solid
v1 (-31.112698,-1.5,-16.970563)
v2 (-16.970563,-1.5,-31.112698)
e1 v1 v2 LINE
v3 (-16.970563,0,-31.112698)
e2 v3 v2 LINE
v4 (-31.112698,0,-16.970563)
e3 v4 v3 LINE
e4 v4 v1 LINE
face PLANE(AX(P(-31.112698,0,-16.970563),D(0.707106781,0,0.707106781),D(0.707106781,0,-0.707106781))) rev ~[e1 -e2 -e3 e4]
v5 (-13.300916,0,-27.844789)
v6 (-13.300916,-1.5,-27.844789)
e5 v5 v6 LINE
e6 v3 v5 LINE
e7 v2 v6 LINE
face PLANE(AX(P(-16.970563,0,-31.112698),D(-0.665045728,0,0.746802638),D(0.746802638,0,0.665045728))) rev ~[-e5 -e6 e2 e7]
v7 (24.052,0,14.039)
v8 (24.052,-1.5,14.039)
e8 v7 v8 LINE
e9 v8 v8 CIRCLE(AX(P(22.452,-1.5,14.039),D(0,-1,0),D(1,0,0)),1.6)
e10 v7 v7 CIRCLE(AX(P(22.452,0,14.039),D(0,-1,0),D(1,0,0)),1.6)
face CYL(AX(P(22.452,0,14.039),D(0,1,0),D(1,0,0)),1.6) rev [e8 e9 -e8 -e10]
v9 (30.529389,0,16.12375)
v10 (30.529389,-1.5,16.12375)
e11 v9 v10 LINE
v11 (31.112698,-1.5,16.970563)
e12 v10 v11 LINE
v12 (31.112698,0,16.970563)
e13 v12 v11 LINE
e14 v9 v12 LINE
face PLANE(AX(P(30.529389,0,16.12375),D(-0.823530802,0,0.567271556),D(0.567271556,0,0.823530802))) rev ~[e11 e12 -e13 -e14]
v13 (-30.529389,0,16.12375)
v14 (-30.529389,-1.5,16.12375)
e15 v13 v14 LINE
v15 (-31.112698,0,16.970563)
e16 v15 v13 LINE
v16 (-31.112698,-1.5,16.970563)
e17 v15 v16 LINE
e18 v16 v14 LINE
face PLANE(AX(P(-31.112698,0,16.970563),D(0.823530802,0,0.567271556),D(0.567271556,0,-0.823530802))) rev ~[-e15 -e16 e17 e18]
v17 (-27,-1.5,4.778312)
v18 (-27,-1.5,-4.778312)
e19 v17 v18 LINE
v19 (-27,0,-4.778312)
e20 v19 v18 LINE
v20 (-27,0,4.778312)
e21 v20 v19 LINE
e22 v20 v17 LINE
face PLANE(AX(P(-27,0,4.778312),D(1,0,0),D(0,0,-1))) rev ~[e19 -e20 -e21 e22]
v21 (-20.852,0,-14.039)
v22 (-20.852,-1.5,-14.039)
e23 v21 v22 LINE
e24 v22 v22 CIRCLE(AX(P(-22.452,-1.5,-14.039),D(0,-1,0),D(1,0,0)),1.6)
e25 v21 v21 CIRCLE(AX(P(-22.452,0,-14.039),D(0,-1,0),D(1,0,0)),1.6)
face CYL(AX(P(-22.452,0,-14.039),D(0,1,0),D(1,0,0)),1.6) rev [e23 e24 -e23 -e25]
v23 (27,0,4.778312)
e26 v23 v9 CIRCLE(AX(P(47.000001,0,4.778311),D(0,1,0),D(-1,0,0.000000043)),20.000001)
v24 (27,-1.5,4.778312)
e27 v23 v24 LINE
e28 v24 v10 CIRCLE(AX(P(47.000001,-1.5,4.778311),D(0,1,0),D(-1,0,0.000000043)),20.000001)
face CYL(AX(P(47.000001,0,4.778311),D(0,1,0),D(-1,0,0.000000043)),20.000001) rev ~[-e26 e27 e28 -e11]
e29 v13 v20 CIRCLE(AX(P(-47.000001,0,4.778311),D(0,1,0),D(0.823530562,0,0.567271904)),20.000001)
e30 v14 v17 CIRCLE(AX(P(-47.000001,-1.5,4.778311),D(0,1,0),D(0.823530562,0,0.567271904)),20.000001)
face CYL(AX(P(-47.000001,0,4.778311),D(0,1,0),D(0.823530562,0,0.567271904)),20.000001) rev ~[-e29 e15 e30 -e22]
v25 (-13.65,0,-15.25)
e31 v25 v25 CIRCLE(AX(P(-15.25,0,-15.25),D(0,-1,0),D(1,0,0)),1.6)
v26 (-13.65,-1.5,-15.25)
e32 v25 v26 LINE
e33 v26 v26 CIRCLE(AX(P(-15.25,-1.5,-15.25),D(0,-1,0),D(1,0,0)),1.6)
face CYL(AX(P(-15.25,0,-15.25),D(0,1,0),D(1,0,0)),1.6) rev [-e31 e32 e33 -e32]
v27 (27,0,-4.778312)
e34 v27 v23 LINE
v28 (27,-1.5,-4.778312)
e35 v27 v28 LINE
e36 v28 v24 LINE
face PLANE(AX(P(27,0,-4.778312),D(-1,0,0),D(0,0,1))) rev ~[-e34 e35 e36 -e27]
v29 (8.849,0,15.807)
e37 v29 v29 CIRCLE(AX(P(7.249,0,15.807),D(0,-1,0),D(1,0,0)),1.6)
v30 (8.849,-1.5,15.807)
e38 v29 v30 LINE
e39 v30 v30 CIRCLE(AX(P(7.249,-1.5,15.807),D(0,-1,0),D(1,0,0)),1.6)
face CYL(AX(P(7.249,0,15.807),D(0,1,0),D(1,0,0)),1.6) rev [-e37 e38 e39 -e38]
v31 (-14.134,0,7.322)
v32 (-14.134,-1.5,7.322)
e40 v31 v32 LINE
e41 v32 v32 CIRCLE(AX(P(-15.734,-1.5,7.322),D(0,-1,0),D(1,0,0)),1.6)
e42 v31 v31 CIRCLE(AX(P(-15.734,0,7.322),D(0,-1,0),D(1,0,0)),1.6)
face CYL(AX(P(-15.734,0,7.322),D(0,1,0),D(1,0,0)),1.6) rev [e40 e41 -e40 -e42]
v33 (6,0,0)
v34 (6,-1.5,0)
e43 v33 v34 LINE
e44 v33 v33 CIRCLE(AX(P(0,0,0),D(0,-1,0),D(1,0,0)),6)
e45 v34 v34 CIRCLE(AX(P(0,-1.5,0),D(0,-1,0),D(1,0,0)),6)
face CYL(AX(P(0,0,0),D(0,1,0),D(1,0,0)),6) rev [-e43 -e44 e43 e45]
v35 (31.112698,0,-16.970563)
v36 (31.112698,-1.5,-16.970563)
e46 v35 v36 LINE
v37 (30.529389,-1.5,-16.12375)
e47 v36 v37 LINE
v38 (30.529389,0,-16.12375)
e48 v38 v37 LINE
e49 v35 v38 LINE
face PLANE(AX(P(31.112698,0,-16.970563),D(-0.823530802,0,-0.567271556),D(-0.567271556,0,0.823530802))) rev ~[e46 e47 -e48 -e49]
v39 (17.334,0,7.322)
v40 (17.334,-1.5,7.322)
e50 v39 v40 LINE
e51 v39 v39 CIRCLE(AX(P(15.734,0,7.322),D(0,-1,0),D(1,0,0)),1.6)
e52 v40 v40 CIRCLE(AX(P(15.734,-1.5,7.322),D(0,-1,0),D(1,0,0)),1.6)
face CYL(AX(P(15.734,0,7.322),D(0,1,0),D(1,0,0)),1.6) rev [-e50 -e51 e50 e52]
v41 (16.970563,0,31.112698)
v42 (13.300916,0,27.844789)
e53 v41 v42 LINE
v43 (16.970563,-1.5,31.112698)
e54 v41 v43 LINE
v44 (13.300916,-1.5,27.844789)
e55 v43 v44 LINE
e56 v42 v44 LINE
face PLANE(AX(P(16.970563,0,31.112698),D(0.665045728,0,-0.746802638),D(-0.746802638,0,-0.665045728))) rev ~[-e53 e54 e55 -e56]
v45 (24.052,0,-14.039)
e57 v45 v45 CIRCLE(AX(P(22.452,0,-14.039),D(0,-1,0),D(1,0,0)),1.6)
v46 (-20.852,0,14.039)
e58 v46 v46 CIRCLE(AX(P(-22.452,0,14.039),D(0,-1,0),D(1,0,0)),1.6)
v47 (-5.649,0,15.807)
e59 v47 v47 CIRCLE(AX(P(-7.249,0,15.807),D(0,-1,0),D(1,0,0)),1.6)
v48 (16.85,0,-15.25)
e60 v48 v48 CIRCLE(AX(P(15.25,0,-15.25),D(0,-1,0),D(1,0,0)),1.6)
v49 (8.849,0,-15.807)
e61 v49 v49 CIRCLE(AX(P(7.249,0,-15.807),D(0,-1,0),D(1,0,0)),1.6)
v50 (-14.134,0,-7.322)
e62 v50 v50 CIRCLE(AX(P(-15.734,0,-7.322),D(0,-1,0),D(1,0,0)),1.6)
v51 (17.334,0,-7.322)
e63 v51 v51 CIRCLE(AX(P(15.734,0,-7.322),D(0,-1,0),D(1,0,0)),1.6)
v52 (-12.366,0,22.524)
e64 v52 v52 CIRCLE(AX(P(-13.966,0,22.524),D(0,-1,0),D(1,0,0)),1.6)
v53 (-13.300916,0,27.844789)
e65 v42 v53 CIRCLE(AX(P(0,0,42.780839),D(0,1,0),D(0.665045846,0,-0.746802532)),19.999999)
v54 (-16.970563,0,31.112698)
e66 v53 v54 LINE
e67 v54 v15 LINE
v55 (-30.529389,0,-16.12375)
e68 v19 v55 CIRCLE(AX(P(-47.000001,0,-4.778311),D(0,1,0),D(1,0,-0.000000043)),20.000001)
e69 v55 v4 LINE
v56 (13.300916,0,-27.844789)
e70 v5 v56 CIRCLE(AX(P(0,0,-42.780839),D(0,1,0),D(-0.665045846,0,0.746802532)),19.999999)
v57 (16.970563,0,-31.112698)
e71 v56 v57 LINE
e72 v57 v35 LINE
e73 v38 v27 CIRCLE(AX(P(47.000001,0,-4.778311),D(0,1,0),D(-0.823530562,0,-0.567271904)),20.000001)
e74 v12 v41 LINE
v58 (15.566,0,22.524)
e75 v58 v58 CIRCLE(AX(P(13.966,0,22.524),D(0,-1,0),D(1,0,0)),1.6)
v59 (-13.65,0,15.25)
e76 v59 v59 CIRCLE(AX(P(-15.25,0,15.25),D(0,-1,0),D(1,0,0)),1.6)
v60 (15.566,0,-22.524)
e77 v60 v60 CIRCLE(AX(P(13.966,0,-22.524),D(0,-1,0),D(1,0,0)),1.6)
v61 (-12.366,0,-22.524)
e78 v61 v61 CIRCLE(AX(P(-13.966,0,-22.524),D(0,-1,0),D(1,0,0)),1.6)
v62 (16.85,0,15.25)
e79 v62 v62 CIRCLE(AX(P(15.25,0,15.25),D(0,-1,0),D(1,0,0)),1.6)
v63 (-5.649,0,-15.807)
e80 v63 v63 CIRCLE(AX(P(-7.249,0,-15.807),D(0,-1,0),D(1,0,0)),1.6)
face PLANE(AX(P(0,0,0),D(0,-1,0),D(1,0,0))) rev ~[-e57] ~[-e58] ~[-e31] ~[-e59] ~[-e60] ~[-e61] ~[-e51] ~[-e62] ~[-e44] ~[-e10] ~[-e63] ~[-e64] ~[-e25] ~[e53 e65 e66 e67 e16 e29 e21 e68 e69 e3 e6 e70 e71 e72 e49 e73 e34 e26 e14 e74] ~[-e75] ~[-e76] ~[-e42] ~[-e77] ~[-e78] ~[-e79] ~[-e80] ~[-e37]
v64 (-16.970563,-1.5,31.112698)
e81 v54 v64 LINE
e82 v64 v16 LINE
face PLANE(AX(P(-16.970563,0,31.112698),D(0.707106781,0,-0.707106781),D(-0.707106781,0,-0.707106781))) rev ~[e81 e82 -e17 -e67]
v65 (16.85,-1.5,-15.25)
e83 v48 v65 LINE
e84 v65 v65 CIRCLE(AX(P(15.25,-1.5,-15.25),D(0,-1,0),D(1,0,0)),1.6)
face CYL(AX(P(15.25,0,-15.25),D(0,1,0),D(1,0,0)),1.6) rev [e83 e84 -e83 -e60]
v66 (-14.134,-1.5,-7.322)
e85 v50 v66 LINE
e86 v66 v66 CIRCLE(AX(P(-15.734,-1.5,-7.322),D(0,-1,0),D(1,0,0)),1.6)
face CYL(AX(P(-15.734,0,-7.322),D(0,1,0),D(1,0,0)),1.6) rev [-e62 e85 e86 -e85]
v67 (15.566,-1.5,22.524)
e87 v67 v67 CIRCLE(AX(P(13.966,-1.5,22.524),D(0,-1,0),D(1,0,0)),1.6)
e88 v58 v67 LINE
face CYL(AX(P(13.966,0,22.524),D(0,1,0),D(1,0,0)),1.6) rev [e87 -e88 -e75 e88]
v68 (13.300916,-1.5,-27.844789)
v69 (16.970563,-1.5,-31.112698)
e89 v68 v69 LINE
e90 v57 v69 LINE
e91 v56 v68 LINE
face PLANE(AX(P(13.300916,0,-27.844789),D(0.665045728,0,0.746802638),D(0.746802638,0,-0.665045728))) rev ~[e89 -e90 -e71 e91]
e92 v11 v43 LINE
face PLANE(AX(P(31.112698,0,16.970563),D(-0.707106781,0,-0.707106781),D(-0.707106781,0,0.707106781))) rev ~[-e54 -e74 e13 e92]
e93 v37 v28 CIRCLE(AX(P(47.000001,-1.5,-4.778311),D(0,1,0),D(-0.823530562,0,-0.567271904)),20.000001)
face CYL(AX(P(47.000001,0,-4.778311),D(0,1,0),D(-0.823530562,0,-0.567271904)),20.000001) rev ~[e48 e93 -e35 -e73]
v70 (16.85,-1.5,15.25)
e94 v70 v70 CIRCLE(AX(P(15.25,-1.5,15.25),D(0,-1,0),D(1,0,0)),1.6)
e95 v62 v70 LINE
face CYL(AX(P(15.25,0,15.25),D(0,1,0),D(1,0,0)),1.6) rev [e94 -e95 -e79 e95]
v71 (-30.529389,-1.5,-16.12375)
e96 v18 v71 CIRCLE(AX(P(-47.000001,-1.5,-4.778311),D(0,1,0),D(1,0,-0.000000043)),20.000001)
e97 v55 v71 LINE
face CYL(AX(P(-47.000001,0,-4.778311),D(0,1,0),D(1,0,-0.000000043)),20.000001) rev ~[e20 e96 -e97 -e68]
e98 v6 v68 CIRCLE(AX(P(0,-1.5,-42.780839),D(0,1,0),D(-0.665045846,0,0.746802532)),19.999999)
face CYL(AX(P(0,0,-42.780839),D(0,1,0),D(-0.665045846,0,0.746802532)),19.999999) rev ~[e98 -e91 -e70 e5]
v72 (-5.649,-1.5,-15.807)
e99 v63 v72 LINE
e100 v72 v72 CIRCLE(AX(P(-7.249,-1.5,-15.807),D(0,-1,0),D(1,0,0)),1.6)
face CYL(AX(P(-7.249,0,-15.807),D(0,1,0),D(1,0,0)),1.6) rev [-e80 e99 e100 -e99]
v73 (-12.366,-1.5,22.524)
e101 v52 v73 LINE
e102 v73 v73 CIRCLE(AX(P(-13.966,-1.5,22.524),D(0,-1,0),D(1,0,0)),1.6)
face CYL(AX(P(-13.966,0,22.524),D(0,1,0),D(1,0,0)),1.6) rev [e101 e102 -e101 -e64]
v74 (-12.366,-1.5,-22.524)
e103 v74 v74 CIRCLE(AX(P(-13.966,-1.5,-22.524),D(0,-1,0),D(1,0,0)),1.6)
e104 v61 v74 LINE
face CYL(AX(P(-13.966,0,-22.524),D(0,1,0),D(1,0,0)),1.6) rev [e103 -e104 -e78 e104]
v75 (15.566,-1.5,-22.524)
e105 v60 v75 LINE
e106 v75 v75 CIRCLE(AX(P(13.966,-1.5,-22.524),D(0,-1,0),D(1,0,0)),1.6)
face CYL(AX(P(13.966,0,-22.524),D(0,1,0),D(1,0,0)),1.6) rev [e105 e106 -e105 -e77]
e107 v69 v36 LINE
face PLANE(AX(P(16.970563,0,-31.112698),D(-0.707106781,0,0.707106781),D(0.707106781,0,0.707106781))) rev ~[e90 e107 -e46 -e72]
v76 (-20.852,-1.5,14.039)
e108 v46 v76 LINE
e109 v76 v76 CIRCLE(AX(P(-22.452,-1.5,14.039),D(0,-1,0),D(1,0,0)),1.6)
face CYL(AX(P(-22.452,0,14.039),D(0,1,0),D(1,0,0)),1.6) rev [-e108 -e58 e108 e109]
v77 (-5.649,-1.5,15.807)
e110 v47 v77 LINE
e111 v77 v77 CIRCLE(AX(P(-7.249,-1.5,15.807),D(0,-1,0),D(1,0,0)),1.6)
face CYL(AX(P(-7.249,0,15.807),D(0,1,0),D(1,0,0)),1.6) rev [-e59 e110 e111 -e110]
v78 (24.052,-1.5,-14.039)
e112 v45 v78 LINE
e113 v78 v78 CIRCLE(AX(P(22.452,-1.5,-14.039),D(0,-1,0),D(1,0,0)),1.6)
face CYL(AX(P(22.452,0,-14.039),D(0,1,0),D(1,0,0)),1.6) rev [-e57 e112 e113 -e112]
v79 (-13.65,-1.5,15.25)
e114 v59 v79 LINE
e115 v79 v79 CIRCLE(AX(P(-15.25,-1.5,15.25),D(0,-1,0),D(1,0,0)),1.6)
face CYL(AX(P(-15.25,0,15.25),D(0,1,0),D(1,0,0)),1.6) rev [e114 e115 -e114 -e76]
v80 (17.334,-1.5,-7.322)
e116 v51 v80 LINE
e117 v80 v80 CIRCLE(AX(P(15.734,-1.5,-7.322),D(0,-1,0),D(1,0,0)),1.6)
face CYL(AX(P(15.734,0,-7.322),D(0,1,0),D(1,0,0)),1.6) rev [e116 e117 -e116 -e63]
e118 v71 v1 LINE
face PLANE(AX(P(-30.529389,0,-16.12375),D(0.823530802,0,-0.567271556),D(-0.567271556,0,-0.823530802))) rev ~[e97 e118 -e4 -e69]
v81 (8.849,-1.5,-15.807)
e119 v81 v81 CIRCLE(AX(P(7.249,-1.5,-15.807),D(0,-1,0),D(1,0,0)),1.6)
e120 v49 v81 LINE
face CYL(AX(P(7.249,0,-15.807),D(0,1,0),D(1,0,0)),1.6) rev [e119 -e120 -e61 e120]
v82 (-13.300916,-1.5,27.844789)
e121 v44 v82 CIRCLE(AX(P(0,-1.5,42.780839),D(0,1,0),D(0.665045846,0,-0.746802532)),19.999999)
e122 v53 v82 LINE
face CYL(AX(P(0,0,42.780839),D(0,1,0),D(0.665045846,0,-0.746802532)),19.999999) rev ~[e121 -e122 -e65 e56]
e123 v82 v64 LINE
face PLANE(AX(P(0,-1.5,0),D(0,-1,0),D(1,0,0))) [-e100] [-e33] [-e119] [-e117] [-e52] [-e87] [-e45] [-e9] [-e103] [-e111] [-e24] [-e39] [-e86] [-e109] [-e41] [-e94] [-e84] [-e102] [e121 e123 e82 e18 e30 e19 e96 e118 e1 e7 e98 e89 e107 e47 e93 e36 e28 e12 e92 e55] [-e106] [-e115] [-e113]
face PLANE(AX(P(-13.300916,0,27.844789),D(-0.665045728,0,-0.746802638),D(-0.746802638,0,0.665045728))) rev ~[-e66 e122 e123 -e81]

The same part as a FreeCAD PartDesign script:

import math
import FreeCAD as App
import Part
import Sketcher

V = App.Vector
Q = App.Units.Quantity

doc = App.newDocument("Part")
body = doc.addObject("PartDesign::Body", "Body")

# Sketch on XZ plane
sketch1 = body.newObject("Sketcher::SketchObject", "Sketch")
sketch1.AttachmentSupport = (doc.getObject("XZ_Plane"), [""])
sketch1.MapMode = "FlatFace"
sketch1.addGeometry([
    Part.LineSegment(V(31.1, 17, 0), V(17, 31.1, 0)),  # 0
    Part.LineSegment(V(17, 31.1, 0), V(13.3, 27.8, 0)),  # 1
    Part.ArcOfCircle(Part.Circle(V(0, 42.8, 0), V(0, 0, 1), 20), math.radians(-132), math.radians(-48)),  # 2
    Part.LineSegment(V(-13.3, 27.8, 0), V(-17, 31.1, 0)),  # 3
    Part.LineSegment(V(-17, 31.1, 0), V(-31.1, 17, 0)),  # 4
    Part.LineSegment(V(-31.1, 17, 0), V(-30.5, 16.1, 0)),  # 5
    Part.ArcOfCircle(Part.Circle(V(-47, 4.8, 0), V(0, 0, 1), 20), math.radians(0), math.radians(35)),  # 6
    Part.LineSegment(V(-27, 4.8, 0), V(-27, -4.8, 0)),  # 7
    Part.ArcOfCircle(Part.Circle(V(-47, -4.8, 0), V(0, 0, 1), 20), math.radians(-35), math.radians(0)),  # 8
    Part.LineSegment(V(-30.5, -16.1, 0), V(-31.1, -17, 0)),  # 9
    Part.LineSegment(V(-31.1, -17, 0), V(-17, -31.1, 0)),  # 10
    Part.LineSegment(V(-17, -31.1, 0), V(-13.3, -27.8, 0)),  # 11
    Part.ArcOfCircle(Part.Circle(V(0, -42.8, 0), V(0, 0, 1), 20), math.radians(48), math.radians(132)),  # 12
    Part.LineSegment(V(13.3, -27.8, 0), V(17, -31.1, 0)),  # 13
    Part.LineSegment(V(17, -31.1, 0), V(31.1, -17, 0)),  # 14
    Part.LineSegment(V(31.1, -17, 0), V(30.5, -16.1, 0)),  # 15
    Part.ArcOfCircle(Part.Circle(V(47, -4.8, 0), V(0, 0, 1), 20), math.radians(-180), math.radians(-145)),  # 16
    Part.LineSegment(V(27, -4.8, 0), V(27, 4.8, 0)),  # 17
    Part.ArcOfCircle(Part.Circle(V(47, 4.8, 0), V(0, 0, 1), 20), math.radians(145), math.radians(180)),  # 18
    Part.LineSegment(V(30.5, 16.1, 0), V(31.1, 17, 0)),  # 19
    Part.Circle(V(-14, -22.5, 0), V(0, 0, 1), 1.6),  # 20
    Part.Circle(V(-22.5, -14, 0), V(0, 0, 1), 1.6),  # 21
    Part.Circle(V(-15.2, -15.2, 0), V(0, 0, 1), 1.6),  # 22
    Part.Circle(V(-7.2, -15.8, 0), V(0, 0, 1), 1.6),  # 23
    Part.Circle(V(-15.7, -7.3, 0), V(0, 0, 1), 1.6),  # 24
    Part.Circle(V(7.2, -15.8, 0), V(0, 0, 1), 1.6),  # 25
    Part.Circle(V(14, -22.5, 0), V(0, 0, 1), 1.6),  # 26
    Part.Circle(V(15.2, -15.2, 0), V(0, 0, 1), 1.6),  # 27
    Part.Circle(V(22.5, -14, 0), V(0, 0, 1), 1.6),  # 28
    Part.Circle(V(15.7, -7.3, 0), V(0, 0, 1), 1.6),  # 29
    Part.Circle(V(-15.7, 7.3, 0), V(0, 0, 1), 1.6),  # 30
    Part.Circle(V(-22.5, 14, 0), V(0, 0, 1), 1.6),  # 31
    Part.Circle(V(-15.2, 15.2, 0), V(0, 0, 1), 1.6),  # 32
    Part.Circle(V(-14, 22.5, 0), V(0, 0, 1), 1.6),  # 33
    Part.Circle(V(-7.2, 15.8, 0), V(0, 0, 1), 1.6),  # 34
    Part.Circle(V(0, 0, 0), V(0, 0, 1), 6),  # 35
    Part.Circle(V(15.7, 7.3, 0), V(0, 0, 1), 1.6),  # 36
    Part.Circle(V(7.2, 15.8, 0), V(0, 0, 1), 1.6),  # 37
    Part.Circle(V(15.2, 15.2, 0), V(0, 0, 1), 1.6),  # 38
    Part.Circle(V(22.5, 14, 0), V(0, 0, 1), 1.6),  # 39
    Part.Circle(V(14, 22.5, 0), V(0, 0, 1), 1.6),  # 40
], False)
sketch1.addConstraint([
    Sketcher.Constraint("Coincident", 0, 2, 1, 1),
    Sketcher.Constraint("Tangent", 1, 2, 2, 2),
    Sketcher.Constraint("Tangent", 2, 1, 3, 1),
    Sketcher.Constraint("Coincident", 3, 2, 4, 1),
    Sketcher.Constraint("Coincident", 4, 2, 5, 1),
    Sketcher.Constraint("Tangent", 5, 2, 6, 2),
    Sketcher.Constraint("Tangent", 6, 1, 7, 1),
    Sketcher.Constraint("Tangent", 7, 2, 8, 2),
    Sketcher.Constraint("Tangent", 8, 1, 9, 1),
    Sketcher.Constraint("Coincident", 9, 2, 10, 1),
    Sketcher.Constraint("Coincident", 10, 2, 11, 1),
    Sketcher.Constraint("Tangent", 11, 2, 12, 2),
    Sketcher.Constraint("Tangent", 12, 1, 13, 1),
    Sketcher.Constraint("Coincident", 13, 2, 14, 1),
    Sketcher.Constraint("Coincident", 14, 2, 15, 1),
    Sketcher.Constraint("Tangent", 15, 2, 16, 2),
    Sketcher.Constraint("Tangent", 16, 1, 17, 1),
    Sketcher.Constraint("Tangent", 17, 2, 18, 2),
    Sketcher.Constraint("Tangent", 18, 1, 19, 1),
    Sketcher.Constraint("Coincident", 19, 2, 0, 1),
    Sketcher.Constraint("Vertical", 7),
    Sketcher.Constraint("Vertical", 17),
    Sketcher.Constraint("Coincident", 35, 3, -1, 1),
    Sketcher.Constraint("Equal", 6, 8),
    Sketcher.Constraint("Equal", 2, 12),
    Sketcher.Constraint("Equal", 8, 16),
    Sketcher.Constraint("Equal", 16, 18),
    Sketcher.Constraint("Equal", 20, 21),
    Sketcher.Constraint("Equal", 21, 22),
    Sketcher.Constraint("Equal", 22, 23),
    Sketcher.Constraint("Equal", 23, 24),
    Sketcher.Constraint("Equal", 24, 25),
    Sketcher.Constraint("Equal", 25, 26),
    Sketcher.Constraint("Equal", 26, 27),
    Sketcher.Constraint("Equal", 27, 28),
    Sketcher.Constraint("Equal", 28, 29),
    Sketcher.Constraint("Equal", 29, 30),
    Sketcher.Constraint("Equal", 30, 31),
    Sketcher.Constraint("Equal", 31, 32),
    Sketcher.Constraint("Equal", 32, 33),
    Sketcher.Constraint("Equal", 33, 34),
    Sketcher.Constraint("Equal", 34, 36),
    Sketcher.Constraint("Equal", 36, 37),
    Sketcher.Constraint("Equal", 37, 38),
    Sketcher.Constraint("Equal", 38, 39),
    Sketcher.Constraint("Equal", 39, 40),
    Sketcher.Constraint("Symmetric", 2, 3, 12, 3, -1, 1),
    Sketcher.Constraint("Symmetric", 6, 3, 16, 3, -1, 1),
    Sketcher.Constraint("Symmetric", 29, 3, 30, 3, -1, 1),
    Sketcher.Constraint("Symmetric", 28, 3, 31, 3, -1, 1),
    Sketcher.Constraint("Symmetric", 27, 3, 32, 3, -1, 1),
    Sketcher.Constraint("Symmetric", 26, 3, 33, 3, -1, 1),
    Sketcher.Constraint("Symmetric", 25, 3, 34, 3, -1, 1),
    Sketcher.Constraint("Symmetric", 24, 3, 36, 3, -1, 1),
    Sketcher.Constraint("Symmetric", 23, 3, 37, 3, -1, 1),
    Sketcher.Constraint("Symmetric", 22, 3, 38, 3, -1, 1),
    Sketcher.Constraint("Symmetric", 21, 3, 39, 3, -1, 1),
    Sketcher.Constraint("Symmetric", 20, 3, 40, 3, -1, 1),
    Sketcher.Constraint("Symmetric", 0, 2, 10, 2, -1, 1),
    Sketcher.Constraint("Symmetric", 3, 2, 13, 2, -1, 1),
    Sketcher.Constraint("Symmetric", 4, 2, 14, 2, -1, 1),
    Sketcher.Constraint("Symmetric", 8, 1, 18, 1, -1, 1),
    Sketcher.Constraint("Symmetric", 23, 3, 25, 3, -2),
    Sketcher.Constraint("Symmetric", 20, 3, 26, 3, -2),
    Sketcher.Constraint("Symmetric", 22, 3, 27, 3, -2),
    Sketcher.Constraint("Symmetric", 21, 3, 28, 3, -2),
    Sketcher.Constraint("Symmetric", 24, 3, 29, 3, -2),
    Sketcher.Constraint("Symmetric", 1, 2, 2, 1, -2),
    Sketcher.Constraint("Symmetric", 9, 2, 14, 2, -2),
    Sketcher.Constraint("Perpendicular", 0, 4),
    Sketcher.Constraint("Perpendicular", 4, 10),
    Sketcher.Constraint("Horizontal", 8, 3, 16, 3),
    Sketcher.Constraint("Horizontal", 0, 2, 3, 2),
    Sketcher.Constraint("Diameter", 35, Q("12 mm")),
    Sketcher.Constraint("Radius", 2, Q("19.999999 mm")),
    Sketcher.Constraint("Radius", 6, Q("20.000001 mm")),
    Sketcher.Constraint("Diameter", 20, Q("3.2 mm")),
    Sketcher.Constraint("Distance", 0, Q("19.999999 mm")),
    Sketcher.Constraint("DistanceX", 6, 3, -1, 1, Q("47.000001 mm")),
    Sketcher.Constraint("DistanceX", 22, 3, 27, 3, Q("30.5 mm")),
    Sketcher.Constraint("DistanceY", 22, 3, 32, 3, Q("30.5 mm")),
    Sketcher.Constraint("DistanceX", 20, 3, -1, 1, Q("13.966 mm")),
    Sketcher.Constraint("DistanceY", 20, 3, -1, 1, Q("22.524 mm")),
    Sketcher.Constraint("DistanceX", 21, 3, -1, 1, Q("22.452 mm")),
    Sketcher.Constraint("DistanceY", 21, 3, -1, 1, Q("14.039 mm")),
    Sketcher.Constraint("DistanceX", 23, 3, -1, 1, Q("7.249 mm")),
    Sketcher.Constraint("DistanceY", 23, 3, -1, 1, Q("15.807 mm")),
    Sketcher.Constraint("DistanceX", 24, 3, -1, 1, Q("15.734 mm")),
    Sketcher.Constraint("DistanceY", 24, 3, -1, 1, Q("7.322 mm")),
    Sketcher.Constraint("DistanceY", -1, 1, 0, 2, Q("31.112698 mm")),
    Sketcher.Constraint("DistanceX", 4, 2, -1, 1, Q("31.112698 mm")),
    Sketcher.Constraint("Distance", 1, Q("4.913811 mm")),
    Sketcher.Constraint("Distance", 5, Q("1.028271 mm")),
])
pad1 = body.newObject("PartDesign::Pad", "Pad")
pad1.Profile = sketch1
pad1.Length = 1.5

doc.recompute()
